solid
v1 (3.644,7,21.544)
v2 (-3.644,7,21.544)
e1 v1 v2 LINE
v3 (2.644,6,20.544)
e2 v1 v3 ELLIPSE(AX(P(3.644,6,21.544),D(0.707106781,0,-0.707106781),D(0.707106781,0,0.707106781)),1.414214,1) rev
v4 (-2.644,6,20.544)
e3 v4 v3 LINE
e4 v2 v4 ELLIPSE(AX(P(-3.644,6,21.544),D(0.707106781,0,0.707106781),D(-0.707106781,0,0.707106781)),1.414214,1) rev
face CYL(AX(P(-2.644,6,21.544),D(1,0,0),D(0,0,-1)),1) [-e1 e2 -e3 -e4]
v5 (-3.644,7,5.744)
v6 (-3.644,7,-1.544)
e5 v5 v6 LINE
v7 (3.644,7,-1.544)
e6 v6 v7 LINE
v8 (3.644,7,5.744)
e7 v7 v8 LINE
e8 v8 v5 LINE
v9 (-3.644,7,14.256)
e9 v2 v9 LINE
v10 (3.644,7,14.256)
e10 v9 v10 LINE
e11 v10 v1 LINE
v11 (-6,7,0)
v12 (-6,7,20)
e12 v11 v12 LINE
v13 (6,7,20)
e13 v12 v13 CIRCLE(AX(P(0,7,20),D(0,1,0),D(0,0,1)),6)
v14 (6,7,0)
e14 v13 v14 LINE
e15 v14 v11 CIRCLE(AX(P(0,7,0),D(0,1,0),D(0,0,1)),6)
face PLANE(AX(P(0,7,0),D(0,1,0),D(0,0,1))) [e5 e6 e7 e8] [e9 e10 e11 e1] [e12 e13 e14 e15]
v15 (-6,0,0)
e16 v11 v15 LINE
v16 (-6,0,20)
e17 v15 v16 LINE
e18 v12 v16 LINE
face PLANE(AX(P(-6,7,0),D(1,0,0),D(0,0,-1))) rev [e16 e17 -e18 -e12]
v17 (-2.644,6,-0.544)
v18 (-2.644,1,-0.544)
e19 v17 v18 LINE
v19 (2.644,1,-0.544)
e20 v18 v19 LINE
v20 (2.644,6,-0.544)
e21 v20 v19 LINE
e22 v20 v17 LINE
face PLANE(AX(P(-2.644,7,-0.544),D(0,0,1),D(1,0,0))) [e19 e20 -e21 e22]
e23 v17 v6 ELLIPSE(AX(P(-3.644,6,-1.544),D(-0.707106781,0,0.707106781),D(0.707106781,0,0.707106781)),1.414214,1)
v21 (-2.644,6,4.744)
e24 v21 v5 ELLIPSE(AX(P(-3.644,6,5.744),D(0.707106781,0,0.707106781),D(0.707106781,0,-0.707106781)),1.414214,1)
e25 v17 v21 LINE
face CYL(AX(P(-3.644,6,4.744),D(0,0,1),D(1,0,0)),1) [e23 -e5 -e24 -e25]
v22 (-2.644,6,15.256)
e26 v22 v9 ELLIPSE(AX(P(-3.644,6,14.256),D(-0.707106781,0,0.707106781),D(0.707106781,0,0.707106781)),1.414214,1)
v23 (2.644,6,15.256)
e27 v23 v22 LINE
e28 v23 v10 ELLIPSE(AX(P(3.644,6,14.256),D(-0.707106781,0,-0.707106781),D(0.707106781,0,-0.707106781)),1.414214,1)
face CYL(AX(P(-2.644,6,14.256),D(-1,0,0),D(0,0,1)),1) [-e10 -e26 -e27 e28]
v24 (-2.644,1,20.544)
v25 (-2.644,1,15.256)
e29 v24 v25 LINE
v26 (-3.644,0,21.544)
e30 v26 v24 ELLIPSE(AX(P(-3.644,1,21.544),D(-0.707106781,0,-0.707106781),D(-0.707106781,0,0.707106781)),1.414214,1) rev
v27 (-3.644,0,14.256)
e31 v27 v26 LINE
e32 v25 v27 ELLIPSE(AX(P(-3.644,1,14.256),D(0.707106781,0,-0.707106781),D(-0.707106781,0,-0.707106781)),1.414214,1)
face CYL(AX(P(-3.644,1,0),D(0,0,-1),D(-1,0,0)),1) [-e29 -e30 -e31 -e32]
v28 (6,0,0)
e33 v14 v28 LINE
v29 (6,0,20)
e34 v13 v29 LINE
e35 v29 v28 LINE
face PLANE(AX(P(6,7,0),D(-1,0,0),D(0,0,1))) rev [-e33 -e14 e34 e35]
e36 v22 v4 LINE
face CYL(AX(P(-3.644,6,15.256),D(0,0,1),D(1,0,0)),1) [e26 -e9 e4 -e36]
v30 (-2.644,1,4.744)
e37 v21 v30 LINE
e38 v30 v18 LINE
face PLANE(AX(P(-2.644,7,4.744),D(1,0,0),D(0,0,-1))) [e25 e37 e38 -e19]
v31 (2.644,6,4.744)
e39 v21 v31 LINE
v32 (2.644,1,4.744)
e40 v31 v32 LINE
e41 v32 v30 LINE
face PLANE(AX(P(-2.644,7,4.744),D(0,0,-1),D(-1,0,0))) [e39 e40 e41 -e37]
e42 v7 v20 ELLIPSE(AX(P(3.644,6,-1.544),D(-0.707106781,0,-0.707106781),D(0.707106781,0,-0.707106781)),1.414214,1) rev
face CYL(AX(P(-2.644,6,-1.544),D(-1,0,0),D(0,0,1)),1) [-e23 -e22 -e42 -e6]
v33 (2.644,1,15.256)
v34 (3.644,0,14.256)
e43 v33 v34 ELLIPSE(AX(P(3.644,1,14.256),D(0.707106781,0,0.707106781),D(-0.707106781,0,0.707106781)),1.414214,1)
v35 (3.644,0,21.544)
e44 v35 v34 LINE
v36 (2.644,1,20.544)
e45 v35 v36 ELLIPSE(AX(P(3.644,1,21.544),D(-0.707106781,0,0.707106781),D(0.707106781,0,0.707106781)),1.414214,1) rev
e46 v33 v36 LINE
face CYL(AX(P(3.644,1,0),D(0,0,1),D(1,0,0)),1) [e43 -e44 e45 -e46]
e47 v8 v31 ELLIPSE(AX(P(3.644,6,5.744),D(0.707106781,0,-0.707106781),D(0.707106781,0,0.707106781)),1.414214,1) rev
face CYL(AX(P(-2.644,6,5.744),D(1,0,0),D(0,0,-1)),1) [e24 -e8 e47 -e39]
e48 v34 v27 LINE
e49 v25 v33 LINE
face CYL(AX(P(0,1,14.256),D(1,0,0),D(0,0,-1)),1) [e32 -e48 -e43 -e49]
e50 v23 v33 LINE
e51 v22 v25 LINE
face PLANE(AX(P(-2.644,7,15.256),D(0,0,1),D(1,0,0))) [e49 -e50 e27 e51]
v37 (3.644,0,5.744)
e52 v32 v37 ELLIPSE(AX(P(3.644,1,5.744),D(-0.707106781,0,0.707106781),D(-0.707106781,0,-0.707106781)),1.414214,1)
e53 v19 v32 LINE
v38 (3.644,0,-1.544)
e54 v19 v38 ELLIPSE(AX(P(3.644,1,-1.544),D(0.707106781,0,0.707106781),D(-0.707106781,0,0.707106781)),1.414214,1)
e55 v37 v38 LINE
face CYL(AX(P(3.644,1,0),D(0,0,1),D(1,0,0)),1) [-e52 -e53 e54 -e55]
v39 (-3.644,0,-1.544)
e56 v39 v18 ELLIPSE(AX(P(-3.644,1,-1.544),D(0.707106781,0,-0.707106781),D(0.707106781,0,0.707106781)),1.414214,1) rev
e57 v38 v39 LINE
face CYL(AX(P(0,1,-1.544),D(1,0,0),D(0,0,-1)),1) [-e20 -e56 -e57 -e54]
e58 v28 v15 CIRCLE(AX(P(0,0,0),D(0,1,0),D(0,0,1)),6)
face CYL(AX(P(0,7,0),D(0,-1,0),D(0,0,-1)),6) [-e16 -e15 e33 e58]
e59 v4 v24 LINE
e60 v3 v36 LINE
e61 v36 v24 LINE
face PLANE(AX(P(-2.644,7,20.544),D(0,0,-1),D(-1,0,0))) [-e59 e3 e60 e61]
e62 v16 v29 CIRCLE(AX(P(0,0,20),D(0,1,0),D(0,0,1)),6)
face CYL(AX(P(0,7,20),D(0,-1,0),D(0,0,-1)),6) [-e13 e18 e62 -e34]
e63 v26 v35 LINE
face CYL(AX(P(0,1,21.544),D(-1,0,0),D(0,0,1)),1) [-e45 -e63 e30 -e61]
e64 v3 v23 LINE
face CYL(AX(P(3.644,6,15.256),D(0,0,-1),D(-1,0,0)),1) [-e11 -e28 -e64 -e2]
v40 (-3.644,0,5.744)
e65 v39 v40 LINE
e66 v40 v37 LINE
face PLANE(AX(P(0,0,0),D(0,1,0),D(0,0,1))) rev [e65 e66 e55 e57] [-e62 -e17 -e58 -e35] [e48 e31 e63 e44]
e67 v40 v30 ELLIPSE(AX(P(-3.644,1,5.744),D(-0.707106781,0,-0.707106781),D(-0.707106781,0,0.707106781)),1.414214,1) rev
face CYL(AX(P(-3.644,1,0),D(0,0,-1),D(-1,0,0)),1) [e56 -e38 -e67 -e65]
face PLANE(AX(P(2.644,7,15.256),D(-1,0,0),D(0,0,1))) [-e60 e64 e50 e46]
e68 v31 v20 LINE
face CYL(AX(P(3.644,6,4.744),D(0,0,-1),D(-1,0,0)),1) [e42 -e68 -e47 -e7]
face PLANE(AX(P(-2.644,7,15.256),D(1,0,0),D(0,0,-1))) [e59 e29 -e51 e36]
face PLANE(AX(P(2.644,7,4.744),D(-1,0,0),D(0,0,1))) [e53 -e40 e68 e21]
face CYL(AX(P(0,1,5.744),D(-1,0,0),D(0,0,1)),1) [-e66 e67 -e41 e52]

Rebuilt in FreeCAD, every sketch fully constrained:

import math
import FreeCAD as App
import Part
import Sketcher
Q = App.Units.Quantity


def edges_at(feature, points):
    """Names of the edges that pass closest to the given points."""
    edges = feature.Shape.Edges
    near = lambda p: min(range(len(edges)), key=lambda i: edges[i].distToShape(Part.Vertex(*p))[0])
    return sorted({f"Edge{near(p) + 1}" for p in points})

doc = App.newDocument("Part")
params = doc.addObject("Spreadsheet::Sheet", "Params")
for row, (alias, value) in enumerate([
    ("sketch1_radius", "6 mm"),
    ("sketch1_height", "20 mm"),
    ("pad1_length", "7 mm"),
    ("fillet_radius", "1 mm"),
], start=1):
    params.set(f"A{row}", alias)
    params.set(f"B{row}", "=" + value)
    params.setAlias(f"B{row}", alias)

body = doc.addObject("PartDesign::Body", "Body")

# Sketch on XZ plane
sketch1 = body.newObject("Sketcher::SketchObject", "Sketch")
sketch1.AttachmentSupport = (doc.getObject("XZ_Plane"), [""])
sketch1.MapMode = "FlatFace"
sketch1.addGeometry([
    Part.LineSegment(App.Vector(6, 20, 0), App.Vector(6, 0, 0)),  # 0
    Part.ArcOfCircle(Part.Circle(App.Vector(0, 0, 0), App.Vector(0, 0, 1), 6), math.radians(180), math.radians(360)),  # 1
    Part.LineSegment(App.Vector(-6, 0, 0), App.Vector(-6, 20, 0)),  # 2
    Part.ArcOfCircle(Part.Circle(App.Vector(0, 20, 0), App.Vector(0, 0, 1), 6), math.radians(0), math.radians(180)),  # 3
    Part.LineSegment(App.Vector(-2.644, 20.544, 0), App.Vector(-2.644, 15.256, 0)),  # 4
    Part.LineSegment(App.Vector(-2.644, 15.256, 0), App.Vector(2.644, 15.256, 0)),  # 5
    Part.LineSegment(App.Vector(2.644, 15.256, 0), App.Vector(2.644, 20.544, 0)),  # 6
    Part.LineSegment(App.Vector(2.644, 20.544, 0), App.Vector(-2.644, 20.544, 0)),  # 7
    Part.LineSegment(App.Vector(-2.644, 4.744, 0), App.Vector(-2.644, -0.544, 0)),  # 8
    Part.LineSegment(App.Vector(-2.644, -0.544, 0), App.Vector(2.644, -0.544, 0)),  # 9
    Part.LineSegment(App.Vector(2.644, -0.544, 0), App.Vector(2.644, 4.744, 0)),  # 10
    Part.LineSegment(App.Vector(2.644, 4.744, 0), App.Vector(-2.644, 4.744, 0)),  # 11
], False)
sketch1.addConstraint([
    Sketcher.Constraint("Tangent", 0, 2, 1, 2),
    Sketcher.Constraint("Tangent", 1, 1, 2, 1),
    Sketcher.Constraint("Tangent", 2, 2, 3, 2),
    Sketcher.Constraint("Tangent", 3, 1, 0, 1),
    Sketcher.Constraint("Coincident", 4, 2, 5, 1),
    Sketcher.Constraint("Coincident", 5, 2, 6, 1),
    Sketcher.Constraint("Coincident", 6, 2, 7, 1),
    Sketcher.Constraint("Coincident", 7, 2, 4, 1),
    Sketcher.Constraint("Coincident", 8, 2, 9, 1),
    Sketcher.Constraint("Coincident", 9, 2, 10, 1),
    Sketcher.Constraint("Coincident", 10, 2, 11, 1),
    Sketcher.Constraint("Coincident", 11, 2, 8, 1),
    Sketcher.Constraint("Vertical", 0),
    Sketcher.Constraint("Vertical", 2),
    Sketcher.Constraint("Vertical", 4),
    Sketcher.Constraint("Horizontal", 5),
    Sketcher.Constraint("Vertical", 6),
    Sketcher.Constraint("Horizontal", 7),
    Sketcher.Constraint("Vertical", 8),
    Sketcher.Constraint("Horizontal", 9),
    Sketcher.Constraint("Vertical", 10),
    Sketcher.Constraint("Horizontal", 11),
    Sketcher.Constraint("Coincident", 1, 3, -1, 1),
    Sketcher.Constraint("Vertical", 7, 2, 8, 2),
    Sketcher.Constraint("Vertical", 6, 2, 9, 2),
    Sketcher.Constraint("Equal", 11, 4),
    Sketcher.Constraint("Equal", 6, 8),
    Sketcher.Constraint("Radius", 1, Q("6 mm")),
    Sketcher.Constraint("DistanceY", 0, 2, 0, 1, Q("20 mm")),
    Sketcher.Constraint("DistanceY", 8, 2, 4, 2, Q("15.8 mm")),
    Sketcher.Constraint("DistanceX", 5, 1, 5, 2, Q("5.288 mm")),
    Sketcher.Constraint("DistanceX", 4, 2, -1, 1, Q("2.644 mm")),
    Sketcher.Constraint("DistanceY", -1, 1, 4, 2, Q("15.256 mm")),
])
sketch1.setExpression("Constraints[27]", "Params.sketch1_radius")
sketch1.setExpression("Constraints[28]", "Params.sketch1_height")
pad1 = body.newObject("PartDesign::Pad", "Pad")
pad1.Profile = sketch1
pad1.setExpression("Length", "Params.pad1_length")
pad1.Reversed = True
doc.recompute()

fillet = body.newObject("PartDesign::Fillet", "Fillet")
fillet.Base = (pad1, edges_at(pad1, [
    (2.644, 0, 2.1),
    (0, 0, -0.544),
    (-2.644, 0, 2.1),
    (0, 0, 4.744),
    (2.644, 7, 2.1),
    (0, 7, -0.544),
    (-2.644, 7, 2.1),
    (0, 7, 4.744),
    (-2.644, 0, 17.9),
    (0, 0, 20.544),
    (2.644, 0, 17.9),
    (0, 0, 15.256),
    (-2.644, 7, 17.9),
    (0, 7, 20.544),
    (2.644, 7, 17.9),
    (0, 7, 15.256),
]))
fillet.setExpression("Radius", "Params.fillet_radius")

doc.recompute()
